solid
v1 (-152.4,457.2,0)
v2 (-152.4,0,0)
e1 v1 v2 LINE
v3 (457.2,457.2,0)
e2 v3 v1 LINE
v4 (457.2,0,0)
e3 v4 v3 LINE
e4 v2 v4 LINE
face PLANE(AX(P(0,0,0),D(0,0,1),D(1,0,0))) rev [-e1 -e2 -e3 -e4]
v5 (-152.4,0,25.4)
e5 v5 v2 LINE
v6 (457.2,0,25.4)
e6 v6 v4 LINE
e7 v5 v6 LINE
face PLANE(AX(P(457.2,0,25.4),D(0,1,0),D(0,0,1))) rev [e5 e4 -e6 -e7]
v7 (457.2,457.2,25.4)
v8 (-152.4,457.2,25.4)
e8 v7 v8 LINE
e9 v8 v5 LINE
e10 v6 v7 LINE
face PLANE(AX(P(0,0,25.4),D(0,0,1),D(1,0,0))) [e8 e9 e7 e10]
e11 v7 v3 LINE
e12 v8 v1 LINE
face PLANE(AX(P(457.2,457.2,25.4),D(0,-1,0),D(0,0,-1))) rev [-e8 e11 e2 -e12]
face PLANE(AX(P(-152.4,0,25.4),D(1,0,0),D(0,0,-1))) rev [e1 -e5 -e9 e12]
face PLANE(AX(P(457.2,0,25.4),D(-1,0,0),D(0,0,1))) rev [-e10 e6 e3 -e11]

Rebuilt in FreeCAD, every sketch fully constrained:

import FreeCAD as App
import Part
import Sketcher
Q = App.Units.Quantity


def add_polygon(sketch, points):
    """Adds a closed chain of lines whose ends are joined by coincident constraints."""
    first, n = sketch.GeometryCount, len(points)
    for a, b in zip(points, points[1:] + points[:1]):
        sketch.addGeometry(Part.LineSegment(App.Vector(*a, 0), App.Vector(*b, 0)), False)
    for i in range(n):
        sketch.addConstraint(Sketcher.Constraint("Coincident", first + i, 2, first + (i + 1) % n, 1))

doc = App.newDocument("Part")
params = doc.addObject("Spreadsheet::Sheet", "Params")
for row, (alias, value) in enumerate([
    ("sketch1_width", "24 in"),
    ("sketch1_height", "18 in"),
    ("pad1_length", "1 in"),
], start=1):
    params.set(f"A{row}", alias)
    params.set(f"B{row}", "=" + value)
    params.setAlias(f"B{row}", alias)

body = doc.addObject("PartDesign::Body", "Body")

# Sketch on XY plane
sketch1 = doc.addObject("Sketcher::SketchObject", "Sketch")
body.addObject(sketch1)
sketch1.AttachmentSupport = (doc.XY_Plane, [""])
sketch1.MapMode = "FlatFace"
add_polygon(sketch1, [(-152, 457), (-152, 0), (457, 0), (457, 457)])  # lines 0-3
sketch1.addConstraint(Sketcher.Constraint("Vertical", 0))
sketch1.addConstraint(Sketcher.Constraint("Horizontal", 1))
sketch1.addConstraint(Sketcher.Constraint("Vertical", 2))
sketch1.addConstraint(Sketcher.Constraint("Horizontal", 3))
sketch1.addConstraint(Sketcher.Constraint("PointOnObject", 0, 2, -1))
sketch1.addConstraint(Sketcher.Constraint("DistanceX", 1, 1, 1, 2, Q("24 in")))
sketch1.addConstraint(Sketcher.Constraint("DistanceY", 0, 2, 0, 1, Q("18 in")))
sketch1.addConstraint(Sketcher.Constraint("DistanceX", 0, 2, -1, 1, Q("6 in")))
sketch1.setExpression("Constraints[9]", "Params.sketch1_width")
sketch1.setExpression("Constraints[10]", "Params.sketch1_height")
pad1 = doc.addObject("PartDesign::Pad", "Pad")
body.addObject(pad1)
pad1.Profile = sketch1
pad1.setExpression("Length", "Params.pad1_length")

doc.recompute()
